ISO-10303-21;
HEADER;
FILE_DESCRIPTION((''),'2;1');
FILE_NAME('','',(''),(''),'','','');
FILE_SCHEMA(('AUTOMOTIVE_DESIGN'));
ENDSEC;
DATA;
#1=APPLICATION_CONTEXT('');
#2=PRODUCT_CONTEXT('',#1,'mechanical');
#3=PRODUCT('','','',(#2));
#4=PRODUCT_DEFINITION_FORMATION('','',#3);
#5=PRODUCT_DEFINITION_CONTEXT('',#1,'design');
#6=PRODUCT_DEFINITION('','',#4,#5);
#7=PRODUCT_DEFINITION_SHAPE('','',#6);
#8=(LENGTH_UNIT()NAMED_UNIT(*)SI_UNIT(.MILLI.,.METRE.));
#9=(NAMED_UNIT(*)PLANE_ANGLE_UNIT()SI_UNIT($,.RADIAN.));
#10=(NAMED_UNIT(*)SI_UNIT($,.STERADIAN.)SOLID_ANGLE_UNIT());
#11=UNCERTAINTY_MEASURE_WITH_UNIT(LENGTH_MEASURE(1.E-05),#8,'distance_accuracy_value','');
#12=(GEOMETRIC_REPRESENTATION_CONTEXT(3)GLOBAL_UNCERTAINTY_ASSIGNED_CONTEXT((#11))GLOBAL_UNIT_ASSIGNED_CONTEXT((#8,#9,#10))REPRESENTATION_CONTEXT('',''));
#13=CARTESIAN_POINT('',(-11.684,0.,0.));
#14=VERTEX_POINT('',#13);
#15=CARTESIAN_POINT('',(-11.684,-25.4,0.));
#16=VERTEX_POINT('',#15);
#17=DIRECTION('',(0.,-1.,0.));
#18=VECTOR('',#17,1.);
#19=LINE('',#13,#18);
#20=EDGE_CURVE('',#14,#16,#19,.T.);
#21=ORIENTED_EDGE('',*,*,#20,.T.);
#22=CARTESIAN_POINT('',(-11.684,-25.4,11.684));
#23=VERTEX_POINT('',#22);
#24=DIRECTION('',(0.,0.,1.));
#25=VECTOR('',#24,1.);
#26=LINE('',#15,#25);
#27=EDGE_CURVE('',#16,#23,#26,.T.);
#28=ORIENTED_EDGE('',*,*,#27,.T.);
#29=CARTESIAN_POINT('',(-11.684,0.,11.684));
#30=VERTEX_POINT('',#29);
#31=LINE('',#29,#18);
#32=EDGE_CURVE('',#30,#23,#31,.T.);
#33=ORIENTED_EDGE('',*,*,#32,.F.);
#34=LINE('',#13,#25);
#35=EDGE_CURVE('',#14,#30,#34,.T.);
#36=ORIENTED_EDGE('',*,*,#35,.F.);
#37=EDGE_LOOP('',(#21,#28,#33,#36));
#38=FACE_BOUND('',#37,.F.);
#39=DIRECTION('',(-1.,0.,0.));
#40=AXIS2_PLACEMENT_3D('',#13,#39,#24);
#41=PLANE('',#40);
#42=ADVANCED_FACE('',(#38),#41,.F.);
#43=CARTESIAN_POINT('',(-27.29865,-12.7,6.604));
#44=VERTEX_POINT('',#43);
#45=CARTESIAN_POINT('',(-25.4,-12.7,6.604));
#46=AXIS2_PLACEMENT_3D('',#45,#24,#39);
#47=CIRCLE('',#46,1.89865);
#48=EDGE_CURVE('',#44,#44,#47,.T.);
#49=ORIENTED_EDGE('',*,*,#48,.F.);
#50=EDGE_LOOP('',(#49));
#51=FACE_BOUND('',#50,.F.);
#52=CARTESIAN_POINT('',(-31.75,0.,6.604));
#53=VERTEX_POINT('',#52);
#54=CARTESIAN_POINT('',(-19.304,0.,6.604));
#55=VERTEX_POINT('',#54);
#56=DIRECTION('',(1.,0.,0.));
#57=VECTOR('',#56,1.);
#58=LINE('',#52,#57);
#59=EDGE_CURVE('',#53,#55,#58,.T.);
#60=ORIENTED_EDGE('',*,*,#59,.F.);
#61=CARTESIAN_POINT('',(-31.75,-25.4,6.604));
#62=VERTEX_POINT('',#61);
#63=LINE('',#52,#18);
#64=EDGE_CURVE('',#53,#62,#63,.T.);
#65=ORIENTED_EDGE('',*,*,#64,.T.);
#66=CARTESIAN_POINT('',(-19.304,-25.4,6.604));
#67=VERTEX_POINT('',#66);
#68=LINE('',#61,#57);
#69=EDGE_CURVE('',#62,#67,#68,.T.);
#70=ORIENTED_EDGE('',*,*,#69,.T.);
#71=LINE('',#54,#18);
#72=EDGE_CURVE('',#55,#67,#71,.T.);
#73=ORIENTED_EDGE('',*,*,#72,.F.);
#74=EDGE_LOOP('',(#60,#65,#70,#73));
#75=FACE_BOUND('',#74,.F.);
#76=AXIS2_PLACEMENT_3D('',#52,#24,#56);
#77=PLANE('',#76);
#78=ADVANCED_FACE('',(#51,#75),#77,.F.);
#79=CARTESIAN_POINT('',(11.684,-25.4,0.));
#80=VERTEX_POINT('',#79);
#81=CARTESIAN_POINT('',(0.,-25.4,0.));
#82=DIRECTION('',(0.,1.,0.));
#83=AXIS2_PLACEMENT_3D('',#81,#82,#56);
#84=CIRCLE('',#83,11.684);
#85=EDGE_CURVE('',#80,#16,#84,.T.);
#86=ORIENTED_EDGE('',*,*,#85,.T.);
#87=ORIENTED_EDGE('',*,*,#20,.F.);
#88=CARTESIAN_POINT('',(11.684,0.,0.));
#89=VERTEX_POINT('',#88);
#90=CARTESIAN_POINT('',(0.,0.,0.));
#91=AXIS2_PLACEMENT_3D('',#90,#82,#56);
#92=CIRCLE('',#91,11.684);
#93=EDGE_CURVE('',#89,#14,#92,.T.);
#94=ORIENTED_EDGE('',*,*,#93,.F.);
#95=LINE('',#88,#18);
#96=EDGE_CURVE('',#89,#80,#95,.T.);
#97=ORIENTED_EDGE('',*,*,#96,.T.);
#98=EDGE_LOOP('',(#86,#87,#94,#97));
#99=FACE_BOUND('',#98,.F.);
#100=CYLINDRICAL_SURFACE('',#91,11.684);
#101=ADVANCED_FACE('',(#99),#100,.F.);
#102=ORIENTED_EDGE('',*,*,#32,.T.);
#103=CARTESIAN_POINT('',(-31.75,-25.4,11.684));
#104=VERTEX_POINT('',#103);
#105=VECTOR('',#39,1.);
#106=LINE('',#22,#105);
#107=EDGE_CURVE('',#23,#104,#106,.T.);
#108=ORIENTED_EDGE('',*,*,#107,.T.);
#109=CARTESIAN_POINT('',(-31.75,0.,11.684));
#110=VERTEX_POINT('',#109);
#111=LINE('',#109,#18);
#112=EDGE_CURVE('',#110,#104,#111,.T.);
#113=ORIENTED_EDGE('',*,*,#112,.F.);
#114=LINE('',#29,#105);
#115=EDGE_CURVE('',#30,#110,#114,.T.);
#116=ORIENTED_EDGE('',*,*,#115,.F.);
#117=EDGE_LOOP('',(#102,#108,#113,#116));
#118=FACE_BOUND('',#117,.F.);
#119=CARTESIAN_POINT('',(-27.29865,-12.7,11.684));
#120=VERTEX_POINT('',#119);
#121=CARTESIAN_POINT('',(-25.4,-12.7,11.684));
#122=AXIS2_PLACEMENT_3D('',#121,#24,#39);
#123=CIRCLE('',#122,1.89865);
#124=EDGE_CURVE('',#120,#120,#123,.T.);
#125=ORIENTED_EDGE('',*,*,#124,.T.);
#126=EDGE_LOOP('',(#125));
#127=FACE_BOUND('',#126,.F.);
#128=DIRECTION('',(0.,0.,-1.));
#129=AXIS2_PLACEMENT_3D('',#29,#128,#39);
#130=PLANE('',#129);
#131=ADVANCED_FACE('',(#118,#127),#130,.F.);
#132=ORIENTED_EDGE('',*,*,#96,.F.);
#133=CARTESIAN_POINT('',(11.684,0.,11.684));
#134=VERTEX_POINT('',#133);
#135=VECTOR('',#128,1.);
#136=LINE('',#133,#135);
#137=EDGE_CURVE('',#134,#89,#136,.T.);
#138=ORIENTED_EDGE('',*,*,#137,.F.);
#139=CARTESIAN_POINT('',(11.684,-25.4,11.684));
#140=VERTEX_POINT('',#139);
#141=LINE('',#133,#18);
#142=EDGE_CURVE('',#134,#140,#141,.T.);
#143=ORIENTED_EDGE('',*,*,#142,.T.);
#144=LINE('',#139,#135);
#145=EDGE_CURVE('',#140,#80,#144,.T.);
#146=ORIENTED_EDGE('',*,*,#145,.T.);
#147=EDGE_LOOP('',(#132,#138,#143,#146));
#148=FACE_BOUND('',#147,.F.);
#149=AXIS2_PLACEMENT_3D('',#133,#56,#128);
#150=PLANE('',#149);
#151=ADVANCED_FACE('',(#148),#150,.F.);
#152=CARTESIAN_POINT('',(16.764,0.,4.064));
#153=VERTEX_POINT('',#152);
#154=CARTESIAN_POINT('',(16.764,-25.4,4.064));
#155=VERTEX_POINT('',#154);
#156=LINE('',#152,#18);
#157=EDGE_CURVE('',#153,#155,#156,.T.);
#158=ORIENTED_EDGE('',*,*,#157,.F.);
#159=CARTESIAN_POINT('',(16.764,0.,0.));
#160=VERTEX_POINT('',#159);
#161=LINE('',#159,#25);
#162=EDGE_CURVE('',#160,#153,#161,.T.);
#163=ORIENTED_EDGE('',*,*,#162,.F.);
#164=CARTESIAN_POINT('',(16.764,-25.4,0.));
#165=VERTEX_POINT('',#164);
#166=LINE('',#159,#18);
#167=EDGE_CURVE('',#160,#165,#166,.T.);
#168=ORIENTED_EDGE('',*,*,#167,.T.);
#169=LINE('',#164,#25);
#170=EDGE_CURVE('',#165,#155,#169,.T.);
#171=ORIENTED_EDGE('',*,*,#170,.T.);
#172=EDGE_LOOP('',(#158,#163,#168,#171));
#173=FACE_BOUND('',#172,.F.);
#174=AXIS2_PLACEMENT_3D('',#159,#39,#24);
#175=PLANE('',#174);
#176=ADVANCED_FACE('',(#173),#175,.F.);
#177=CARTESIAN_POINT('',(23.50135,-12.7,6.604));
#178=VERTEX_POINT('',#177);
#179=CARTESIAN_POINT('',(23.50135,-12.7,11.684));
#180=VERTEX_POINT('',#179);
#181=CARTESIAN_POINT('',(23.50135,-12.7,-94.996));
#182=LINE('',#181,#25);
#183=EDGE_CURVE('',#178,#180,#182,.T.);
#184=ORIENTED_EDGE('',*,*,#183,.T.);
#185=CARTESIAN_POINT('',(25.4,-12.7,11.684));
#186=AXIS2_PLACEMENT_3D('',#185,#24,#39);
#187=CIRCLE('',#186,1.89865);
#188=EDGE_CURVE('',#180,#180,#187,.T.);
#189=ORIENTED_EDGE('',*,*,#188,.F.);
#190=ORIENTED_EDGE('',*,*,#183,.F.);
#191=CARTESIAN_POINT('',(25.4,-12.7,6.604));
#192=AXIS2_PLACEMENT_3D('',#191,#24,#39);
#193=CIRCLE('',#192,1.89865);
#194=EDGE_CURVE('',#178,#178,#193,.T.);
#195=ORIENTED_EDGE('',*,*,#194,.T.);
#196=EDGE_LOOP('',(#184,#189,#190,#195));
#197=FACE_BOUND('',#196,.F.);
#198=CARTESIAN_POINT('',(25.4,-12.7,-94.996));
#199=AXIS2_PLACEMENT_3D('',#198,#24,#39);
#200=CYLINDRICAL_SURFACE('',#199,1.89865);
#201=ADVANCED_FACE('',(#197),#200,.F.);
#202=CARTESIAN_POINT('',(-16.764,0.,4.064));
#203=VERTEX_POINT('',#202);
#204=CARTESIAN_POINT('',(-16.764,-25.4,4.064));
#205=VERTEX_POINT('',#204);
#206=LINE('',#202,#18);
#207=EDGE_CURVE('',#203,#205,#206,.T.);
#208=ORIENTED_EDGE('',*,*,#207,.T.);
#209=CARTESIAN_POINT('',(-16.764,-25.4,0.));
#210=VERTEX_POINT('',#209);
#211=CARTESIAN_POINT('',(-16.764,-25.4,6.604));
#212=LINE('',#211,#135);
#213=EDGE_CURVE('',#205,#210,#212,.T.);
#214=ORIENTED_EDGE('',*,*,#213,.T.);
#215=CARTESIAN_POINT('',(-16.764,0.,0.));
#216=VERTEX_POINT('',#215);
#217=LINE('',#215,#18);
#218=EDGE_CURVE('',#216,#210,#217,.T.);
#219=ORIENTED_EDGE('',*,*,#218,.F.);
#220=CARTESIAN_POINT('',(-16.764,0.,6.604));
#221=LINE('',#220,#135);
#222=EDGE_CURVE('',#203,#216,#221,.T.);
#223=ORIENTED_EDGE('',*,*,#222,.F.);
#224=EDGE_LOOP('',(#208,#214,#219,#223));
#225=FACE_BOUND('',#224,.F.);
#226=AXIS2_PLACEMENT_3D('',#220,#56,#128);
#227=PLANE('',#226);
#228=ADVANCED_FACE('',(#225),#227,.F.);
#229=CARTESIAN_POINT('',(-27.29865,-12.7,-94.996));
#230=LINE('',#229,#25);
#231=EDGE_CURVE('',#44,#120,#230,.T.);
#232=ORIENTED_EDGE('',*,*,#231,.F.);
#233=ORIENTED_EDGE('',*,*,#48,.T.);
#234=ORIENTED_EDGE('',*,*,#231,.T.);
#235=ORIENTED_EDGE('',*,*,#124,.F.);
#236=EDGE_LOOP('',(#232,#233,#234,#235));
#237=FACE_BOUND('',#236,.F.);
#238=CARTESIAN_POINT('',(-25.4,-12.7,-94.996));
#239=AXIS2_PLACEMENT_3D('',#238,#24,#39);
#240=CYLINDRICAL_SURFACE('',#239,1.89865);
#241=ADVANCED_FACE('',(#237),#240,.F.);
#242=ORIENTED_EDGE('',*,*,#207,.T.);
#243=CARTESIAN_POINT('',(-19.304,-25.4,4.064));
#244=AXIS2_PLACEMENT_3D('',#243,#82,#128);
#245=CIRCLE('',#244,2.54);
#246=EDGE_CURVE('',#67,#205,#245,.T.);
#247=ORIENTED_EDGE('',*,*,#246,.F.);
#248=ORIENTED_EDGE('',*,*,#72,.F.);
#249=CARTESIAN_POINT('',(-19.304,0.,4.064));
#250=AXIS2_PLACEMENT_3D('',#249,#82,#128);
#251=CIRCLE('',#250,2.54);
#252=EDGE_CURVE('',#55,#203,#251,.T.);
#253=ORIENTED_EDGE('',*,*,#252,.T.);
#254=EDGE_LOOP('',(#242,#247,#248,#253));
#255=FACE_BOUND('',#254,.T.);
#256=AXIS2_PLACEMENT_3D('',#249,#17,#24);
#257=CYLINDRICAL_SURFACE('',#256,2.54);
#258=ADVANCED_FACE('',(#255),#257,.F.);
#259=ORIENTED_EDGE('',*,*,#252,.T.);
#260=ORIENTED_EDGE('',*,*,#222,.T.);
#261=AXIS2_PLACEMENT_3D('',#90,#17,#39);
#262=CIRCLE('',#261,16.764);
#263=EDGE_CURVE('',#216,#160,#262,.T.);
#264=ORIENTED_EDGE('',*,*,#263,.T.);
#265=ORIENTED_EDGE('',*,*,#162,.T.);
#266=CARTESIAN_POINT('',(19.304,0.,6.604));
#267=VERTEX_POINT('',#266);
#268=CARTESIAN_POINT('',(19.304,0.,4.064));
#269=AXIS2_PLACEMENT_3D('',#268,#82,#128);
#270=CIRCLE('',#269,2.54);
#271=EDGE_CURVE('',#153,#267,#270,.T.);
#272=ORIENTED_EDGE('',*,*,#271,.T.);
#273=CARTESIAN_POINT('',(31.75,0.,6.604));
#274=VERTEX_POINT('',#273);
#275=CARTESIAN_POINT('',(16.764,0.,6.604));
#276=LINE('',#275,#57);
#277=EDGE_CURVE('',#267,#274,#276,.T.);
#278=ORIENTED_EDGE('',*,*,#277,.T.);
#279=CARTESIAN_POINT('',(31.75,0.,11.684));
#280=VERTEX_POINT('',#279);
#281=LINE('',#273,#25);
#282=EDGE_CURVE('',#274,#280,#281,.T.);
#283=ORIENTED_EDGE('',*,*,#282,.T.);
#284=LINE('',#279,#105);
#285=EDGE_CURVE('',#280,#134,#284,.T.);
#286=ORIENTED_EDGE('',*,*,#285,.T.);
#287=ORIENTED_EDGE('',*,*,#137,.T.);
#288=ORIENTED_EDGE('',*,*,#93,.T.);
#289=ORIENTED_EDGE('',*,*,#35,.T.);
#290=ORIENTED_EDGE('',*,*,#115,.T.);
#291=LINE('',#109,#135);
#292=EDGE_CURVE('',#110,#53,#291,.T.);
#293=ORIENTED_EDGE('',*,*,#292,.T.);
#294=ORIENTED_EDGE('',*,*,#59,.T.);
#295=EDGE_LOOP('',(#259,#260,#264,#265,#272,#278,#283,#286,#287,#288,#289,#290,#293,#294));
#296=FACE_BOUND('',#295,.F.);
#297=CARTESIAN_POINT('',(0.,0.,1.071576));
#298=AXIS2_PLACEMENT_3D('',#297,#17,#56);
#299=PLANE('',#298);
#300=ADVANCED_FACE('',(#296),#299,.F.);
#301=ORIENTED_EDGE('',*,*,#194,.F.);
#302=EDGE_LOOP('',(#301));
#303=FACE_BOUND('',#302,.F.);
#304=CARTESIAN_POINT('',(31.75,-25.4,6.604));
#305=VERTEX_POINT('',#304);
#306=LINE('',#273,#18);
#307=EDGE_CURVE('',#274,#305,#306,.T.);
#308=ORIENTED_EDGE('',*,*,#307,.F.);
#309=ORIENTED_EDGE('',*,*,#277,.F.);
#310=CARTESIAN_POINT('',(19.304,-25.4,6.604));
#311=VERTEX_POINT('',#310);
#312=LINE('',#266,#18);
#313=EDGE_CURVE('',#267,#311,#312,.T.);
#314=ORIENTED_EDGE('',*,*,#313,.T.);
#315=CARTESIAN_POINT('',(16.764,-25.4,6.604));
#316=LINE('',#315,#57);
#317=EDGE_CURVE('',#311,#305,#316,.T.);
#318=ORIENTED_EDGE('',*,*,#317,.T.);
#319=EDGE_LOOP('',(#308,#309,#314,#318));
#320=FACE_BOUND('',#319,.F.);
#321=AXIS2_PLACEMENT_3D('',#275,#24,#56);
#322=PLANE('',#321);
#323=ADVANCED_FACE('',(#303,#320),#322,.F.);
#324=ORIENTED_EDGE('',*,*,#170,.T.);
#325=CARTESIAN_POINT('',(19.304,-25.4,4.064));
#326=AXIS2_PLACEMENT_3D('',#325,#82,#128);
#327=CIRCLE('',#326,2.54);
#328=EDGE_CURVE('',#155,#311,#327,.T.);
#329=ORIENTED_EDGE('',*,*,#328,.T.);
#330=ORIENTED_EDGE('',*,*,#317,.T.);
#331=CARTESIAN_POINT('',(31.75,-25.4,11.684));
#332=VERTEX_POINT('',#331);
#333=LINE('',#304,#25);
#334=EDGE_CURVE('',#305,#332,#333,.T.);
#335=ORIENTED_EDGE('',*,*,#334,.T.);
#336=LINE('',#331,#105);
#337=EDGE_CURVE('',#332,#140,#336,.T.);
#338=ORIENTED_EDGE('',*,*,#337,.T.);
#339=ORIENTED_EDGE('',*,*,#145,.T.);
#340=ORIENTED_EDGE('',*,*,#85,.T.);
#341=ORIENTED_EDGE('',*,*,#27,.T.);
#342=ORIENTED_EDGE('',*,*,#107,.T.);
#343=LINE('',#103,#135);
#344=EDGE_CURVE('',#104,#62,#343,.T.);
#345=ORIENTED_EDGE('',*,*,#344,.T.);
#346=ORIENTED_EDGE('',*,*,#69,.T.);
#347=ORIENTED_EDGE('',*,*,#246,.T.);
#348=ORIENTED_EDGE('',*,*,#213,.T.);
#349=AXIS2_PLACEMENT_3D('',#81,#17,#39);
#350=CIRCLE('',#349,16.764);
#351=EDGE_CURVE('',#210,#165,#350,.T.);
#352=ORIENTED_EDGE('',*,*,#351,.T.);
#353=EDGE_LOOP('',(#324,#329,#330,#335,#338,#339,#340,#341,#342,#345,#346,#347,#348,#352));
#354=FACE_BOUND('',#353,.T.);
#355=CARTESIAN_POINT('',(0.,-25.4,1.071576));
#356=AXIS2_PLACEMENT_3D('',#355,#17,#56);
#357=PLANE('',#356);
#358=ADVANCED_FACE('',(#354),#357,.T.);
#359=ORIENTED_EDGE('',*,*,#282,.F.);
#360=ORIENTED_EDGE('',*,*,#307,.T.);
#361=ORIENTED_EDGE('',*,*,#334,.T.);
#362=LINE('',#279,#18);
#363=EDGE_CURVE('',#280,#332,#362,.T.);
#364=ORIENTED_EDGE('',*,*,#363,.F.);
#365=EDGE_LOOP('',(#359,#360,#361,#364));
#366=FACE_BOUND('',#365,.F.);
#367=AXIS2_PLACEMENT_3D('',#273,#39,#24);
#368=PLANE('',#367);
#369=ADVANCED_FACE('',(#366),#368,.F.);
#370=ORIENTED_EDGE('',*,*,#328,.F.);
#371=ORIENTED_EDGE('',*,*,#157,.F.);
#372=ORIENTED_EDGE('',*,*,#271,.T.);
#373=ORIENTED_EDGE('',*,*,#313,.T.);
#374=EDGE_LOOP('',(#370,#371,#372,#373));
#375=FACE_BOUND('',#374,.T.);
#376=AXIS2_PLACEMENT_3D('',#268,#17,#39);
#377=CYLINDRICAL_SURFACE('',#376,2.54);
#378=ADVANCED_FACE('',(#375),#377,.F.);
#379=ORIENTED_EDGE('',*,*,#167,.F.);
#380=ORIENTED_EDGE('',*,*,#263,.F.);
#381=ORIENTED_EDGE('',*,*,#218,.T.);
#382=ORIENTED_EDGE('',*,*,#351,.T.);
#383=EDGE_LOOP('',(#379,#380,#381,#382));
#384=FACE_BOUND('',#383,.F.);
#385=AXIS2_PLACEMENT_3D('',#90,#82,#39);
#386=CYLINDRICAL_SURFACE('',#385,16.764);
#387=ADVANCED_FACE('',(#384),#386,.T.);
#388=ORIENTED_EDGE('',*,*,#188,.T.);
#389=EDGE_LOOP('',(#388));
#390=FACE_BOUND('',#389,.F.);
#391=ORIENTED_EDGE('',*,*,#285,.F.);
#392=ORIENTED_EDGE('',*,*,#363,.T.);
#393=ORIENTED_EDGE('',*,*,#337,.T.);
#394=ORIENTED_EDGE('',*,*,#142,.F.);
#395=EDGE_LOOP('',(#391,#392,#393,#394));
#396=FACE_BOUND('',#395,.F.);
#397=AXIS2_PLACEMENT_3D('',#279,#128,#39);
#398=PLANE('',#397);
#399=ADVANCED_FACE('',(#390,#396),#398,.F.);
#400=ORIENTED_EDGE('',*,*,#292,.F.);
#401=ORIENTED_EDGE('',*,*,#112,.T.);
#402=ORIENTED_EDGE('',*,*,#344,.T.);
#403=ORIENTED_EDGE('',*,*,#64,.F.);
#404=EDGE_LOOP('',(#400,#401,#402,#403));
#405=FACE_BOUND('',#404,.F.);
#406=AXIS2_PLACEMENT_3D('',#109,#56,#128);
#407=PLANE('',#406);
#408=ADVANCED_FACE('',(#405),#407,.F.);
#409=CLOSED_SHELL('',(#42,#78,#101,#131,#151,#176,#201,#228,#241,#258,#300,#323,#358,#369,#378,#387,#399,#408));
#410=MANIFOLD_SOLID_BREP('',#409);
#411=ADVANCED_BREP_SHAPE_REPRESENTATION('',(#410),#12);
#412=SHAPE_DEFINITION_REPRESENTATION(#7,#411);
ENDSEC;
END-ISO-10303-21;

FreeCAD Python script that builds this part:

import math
import FreeCAD as App
import Part
import Sketcher
Q = App.Units.Quantity


def edges_at(feature, points):
    """Names of the edges that pass closest to the given points."""
    edges = feature.Shape.Edges
    near = lambda p: min(range(len(edges)), key=lambda i: edges[i].distToShape(Part.Vertex(*p))[0])
    return sorted({f"Edge{near(p) + 1}" for p in points})

doc = App.newDocument("Part")
body = doc.addObject("PartDesign::Body", "Body")

sketch1 = body.newObject("Sketcher::SketchObject", "Sketch")
sketch1.AttachmentSupport = (doc.getObject("XZ_Plane"), [""])
sketch1.MapMode = "FlatFace"
sketch1.addGeometry([
    Part.ArcOfCircle(Part.Circle(App.Vector(0, 0, 0), App.Vector(0, 0, 1), 11.684), math.radians(180), math.radians(360)),
    Part.LineSegment(App.Vector(-11.684, 0, 0), App.Vector(-11.684, 11.684, 0)),
    Part.LineSegment(App.Vector(-11.684, 11.684, 0), App.Vector(-31.75, 11.684, 0)),
    Part.LineSegment(App.Vector(-31.75, 11.684, 0), App.Vector(-31.75, 6.604, 0)),
    Part.LineSegment(App.Vector(-31.75, 6.604, 0), App.Vector(-16.764, 6.604, 0)),
    Part.LineSegment(App.Vector(-16.764, 6.604, 0), App.Vector(-16.764, 0, 0)),
    Part.ArcOfCircle(Part.Circle(App.Vector(0, 0, 0), App.Vector(0, 0, 1), 16.764), math.radians(180), math.radians(360)),
    Part.LineSegment(App.Vector(16.764, 0, 0), App.Vector(16.764, 6.604, 0)),
    Part.LineSegment(App.Vector(16.764, 6.604, 0), App.Vector(31.75, 6.604, 0)),
    Part.LineSegment(App.Vector(31.75, 6.604, 0), App.Vector(31.75, 11.684, 0)),
    Part.LineSegment(App.Vector(31.75, 11.684, 0), App.Vector(11.684, 11.684, 0)),
    Part.LineSegment(App.Vector(11.684, 11.684, 0), App.Vector(11.684, 0, 0)),
], False)
sketch1.addConstraint([
    Sketcher.Constraint("Tangent", 0, 1, 1, 1),
    Sketcher.Constraint("Coincident", 1, 2, 2, 1),
    Sketcher.Constraint("Coincident", 2, 2, 3, 1),
    Sketcher.Constraint("Coincident", 3, 2, 4, 1),
    Sketcher.Constraint("Coincident", 4, 2, 5, 1),
    Sketcher.Constraint("Tangent", 5, 2, 6, 1),
    Sketcher.Constraint("Tangent", 6, 2, 7, 1),
    Sketcher.Constraint("Coincident", 7, 2, 8, 1),
    Sketcher.Constraint("Coincident", 8, 2, 9, 1),
    Sketcher.Constraint("Coincident", 9, 2, 10, 1),
    Sketcher.Constraint("Coincident", 10, 2, 11, 1),
    Sketcher.Constraint("Tangent", 11, 2, 0, 2),
    Sketcher.Constraint("Vertical", 1),
    Sketcher.Constraint("Horizontal", 2),
    Sketcher.Constraint("Vertical", 3),
    Sketcher.Constraint("Horizontal", 4),
    Sketcher.Constraint("Vertical", 5),
    Sketcher.Constraint("Vertical", 7),
    Sketcher.Constraint("Horizontal", 8),
    Sketcher.Constraint("Vertical", 9),
    Sketcher.Constraint("Horizontal", 10),
    Sketcher.Constraint("Vertical", 11),
    Sketcher.Constraint("Coincident", 0, 3, -1, 1),
    Sketcher.Constraint("Coincident", 6, 3, -1, 1),
    Sketcher.Constraint("Symmetric", 3, 2, 8, 2, -2),
    Sketcher.Constraint("Horizontal", 2, 2, 9, 2),
    Sketcher.Constraint("Radius", 0, Q("0.46 in")),
    Sketcher.Constraint("Radius", 6, Q("0.66 in")),
    Sketcher.Constraint("DistanceY", 3, 2, 3, 1, Q("0.2 in")),
    Sketcher.Constraint("DistanceX", 2, 2, 2, 1, Q("0.79 in")),
    Sketcher.Constraint("DistanceY", 1, 1, 1, 2, Q("0.46 in")),
])
pad1 = body.newObject("PartDesign::Pad", "Pad")
pad1.Profile = sketch1
pad1.Length = Q("1 in")

sketch2 = body.newObject("Sketcher::SketchObject", "Sketch001")
sketch2.AttachmentSupport = (doc.getObject("XY_Plane"), [""])
sketch2.MapMode = "FlatFace"
sketch2.AttachmentOffset = App.Placement(App.Vector(0, 0, 0.26 * 25.4), App.Rotation())
sketch2.addGeometry([
    Part.Circle(App.Vector(-25.4, -12.7, 0), App.Vector(0, 0, 1), 1.89865),
    Part.Circle(App.Vector(25.4, -12.7, 0), App.Vector(0, 0, 1), 1.89865),
], False)
sketch2.addConstraint([
    Sketcher.Constraint("Equal", 0, 1),
    Sketcher.Constraint("Symmetric", 0, 3, 1, 3, -2),
    Sketcher.Constraint("DistanceX", 0, 3, -1, 1, Q("1 in")),
    Sketcher.Constraint("Diameter", 0, Q("0.1495 in")),
    Sketcher.Constraint("DistanceY", 0, 3, -1, 1, Q("0.5 in")),
])
doc.recompute()
hole = body.newObject("PartDesign::Hole", "Hole")
hole.Profile = sketch2
hole.ThreadType = "None"
hole.Diameter = Q("0.1495 in")
hole.DepthType = "Dimension"
hole.Depth = Q("4 in")
hole.DrillPoint = "Angled"
hole.DrillPointAngle = 118
hole.Reversed = True
doc.recompute()

fillet = body.newObject("PartDesign::Fillet", "Fillet")
fillet.Base = (hole, edges_at(hole, [(16.764, -12.7, 6.604), (-16.764, -12.7, 6.604)]))
fillet.Radius = Q("0.1 in")

doc.recompute()
